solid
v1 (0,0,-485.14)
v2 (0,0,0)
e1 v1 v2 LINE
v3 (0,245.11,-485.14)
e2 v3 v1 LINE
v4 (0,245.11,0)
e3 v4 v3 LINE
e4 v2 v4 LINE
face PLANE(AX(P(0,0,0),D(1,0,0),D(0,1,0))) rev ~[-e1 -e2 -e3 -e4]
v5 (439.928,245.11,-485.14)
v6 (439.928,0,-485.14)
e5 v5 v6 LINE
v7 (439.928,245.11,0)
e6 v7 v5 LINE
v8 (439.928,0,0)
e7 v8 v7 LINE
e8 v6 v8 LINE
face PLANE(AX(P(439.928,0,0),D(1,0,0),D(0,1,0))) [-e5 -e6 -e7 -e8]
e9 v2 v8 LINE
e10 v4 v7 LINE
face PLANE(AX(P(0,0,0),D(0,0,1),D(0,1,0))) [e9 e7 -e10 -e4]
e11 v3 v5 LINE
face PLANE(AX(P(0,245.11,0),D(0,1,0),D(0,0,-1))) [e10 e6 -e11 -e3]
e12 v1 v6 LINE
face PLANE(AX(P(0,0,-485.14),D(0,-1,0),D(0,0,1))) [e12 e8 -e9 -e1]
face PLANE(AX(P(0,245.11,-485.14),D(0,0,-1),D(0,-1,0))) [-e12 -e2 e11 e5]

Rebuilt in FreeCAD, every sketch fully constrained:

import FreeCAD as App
import Part
import Sketcher

V = App.Vector
Q = App.Units.Quantity

doc = App.newDocument("Part")
body = doc.addObject("PartDesign::Body", "Body")

# Sketch on YZ plane
sketch1 = body.newObject("Sketcher::SketchObject", "Sketch")
sketch1.AttachmentSupport = (doc.getObject("YZ_Plane"), [""])
sketch1.MapMode = "FlatFace"
sketch1.addGeometry([
    Part.LineSegment(V(245, 0, 0), V(0, 0, 0)),
    Part.LineSegment(V(0, 0, 0), V(0, -485, 0)),
    Part.LineSegment(V(0, -485, 0), V(245, -485, 0)),
    Part.LineSegment(V(245, -485, 0), V(245, 0, 0)),
], False)
sketch1.addConstraint([
    Sketcher.Constraint("Coincident", 0, 2, 1, 1),
    Sketcher.Constraint("Coincident", 1, 2, 2, 1),
    Sketcher.Constraint("Coincident", 2, 2, 3, 1),
    Sketcher.Constraint("Coincident", 3, 2, 0, 1),
    Sketcher.Constraint("Horizontal", 0),
    Sketcher.Constraint("Vertical", 1),
    Sketcher.Constraint("Horizontal", 2),
    Sketcher.Constraint("Vertical", 3),
    Sketcher.Constraint("Coincident", 0, 2, -1, 1),
    Sketcher.Constraint("DistanceY", 1, 2, 1, 1, Q("19.1 in")),
    Sketcher.Constraint("DistanceX", 0, 2, 0, 1, Q("9.65 in")),
])
pad1 = body.newObject("PartDesign::Pad", "Pad")
pad1.Profile = sketch1
pad1.Length = Q("17.32 in")

doc.recompute()
